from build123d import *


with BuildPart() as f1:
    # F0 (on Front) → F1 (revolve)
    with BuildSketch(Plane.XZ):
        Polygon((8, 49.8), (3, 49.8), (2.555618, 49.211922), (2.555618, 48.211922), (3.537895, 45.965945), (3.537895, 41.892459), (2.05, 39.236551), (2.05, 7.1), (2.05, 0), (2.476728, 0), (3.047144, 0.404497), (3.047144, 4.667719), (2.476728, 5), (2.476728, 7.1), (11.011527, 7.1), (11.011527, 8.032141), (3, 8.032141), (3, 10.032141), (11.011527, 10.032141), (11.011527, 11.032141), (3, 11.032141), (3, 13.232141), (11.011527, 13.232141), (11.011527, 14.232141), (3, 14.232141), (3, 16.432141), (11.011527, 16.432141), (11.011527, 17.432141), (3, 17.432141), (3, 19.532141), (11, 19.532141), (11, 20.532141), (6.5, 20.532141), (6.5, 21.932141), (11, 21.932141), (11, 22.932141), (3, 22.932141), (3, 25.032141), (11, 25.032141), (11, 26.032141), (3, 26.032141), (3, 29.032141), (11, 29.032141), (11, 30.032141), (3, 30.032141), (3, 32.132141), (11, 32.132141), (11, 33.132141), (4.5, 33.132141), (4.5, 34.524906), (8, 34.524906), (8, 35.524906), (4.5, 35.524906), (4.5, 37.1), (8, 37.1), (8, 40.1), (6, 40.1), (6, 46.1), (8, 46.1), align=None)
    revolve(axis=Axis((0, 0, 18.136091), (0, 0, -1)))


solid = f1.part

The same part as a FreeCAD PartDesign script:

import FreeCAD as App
import Part
import Sketcher
Q = App.Units.Quantity


def add_polygon(sketch, points):
    """Adds a closed chain of lines whose ends are joined by coincident constraints."""
    first, n = sketch.GeometryCount, len(points)
    for a, b in zip(points, points[1:] + points[:1]):
        sketch.addGeometry(Part.LineSegment(App.Vector(*a, 0), App.Vector(*b, 0)), False)
    for i in range(n):
        sketch.addConstraint(Sketcher.Constraint("Coincident", first + i, 2, first + (i + 1) % n, 1))

doc = App.newDocument("Part")
body = doc.addObject("PartDesign::Body", "Body")

sketch1 = body.newObject("Sketcher::SketchObject", "Sketch")
sketch1.AttachmentSupport = (doc.getObject("XZ_Plane"), [""])
sketch1.MapMode = "FlatFace"
add_polygon(sketch1, [(8, 49.8), (3, 49.8), (2.56, 49.21), (2.56, 48.21), (3.54, 45.97), (3.54, 41.89), (2.05, 39.24), (2.05, 0), (2.48, 0), (3.05, 0.4), (3.05, 4.67), (2.48, 5), (2.48, 7.1), (11.01, 7.1), (11.01, 8.03), (3, 8.03), (3, 10.03), (11.01, 10.03), (11.01, 11.03), (3, 11.03), (3, 13.23), (11.01, 13.23), (11.01, 14.23), (3, 14.23), (3, 16.43), (11.01, 16.43), (11.01, 17.43), (3, 17.43), (3, 19.53), (11, 19.53), (11, 20.53), (6.5, 20.53), (6.5, 21.93), (11, 21.93), (11, 22.93), (3, 22.93), (3, 25.03), (11, 25.03), (11, 26.03), (3, 26.03), (3, 29.03), (11, 29.03), (11, 30.03), (3, 30.03), (3, 32.13), (11, 32.13), (11, 33.13), (4.5, 33.13), (4.5, 34.52), (8, 34.52), (8, 35.52), (4.5, 35.52), (4.5, 37.1), (8, 37.1), (8, 40.1), (6, 40.1), (6, 46.1), (8, 46.1)])
sketch1.addConstraint([
    Sketcher.Constraint("Horizontal", 0),
    Sketcher.Constraint("Vertical", 2),
    Sketcher.Constraint("Vertical", 4),
    Sketcher.Constraint("Vertical", 6),
    Sketcher.Constraint("Horizontal", 7),
    Sketcher.Constraint("Vertical", 9),
    Sketcher.Constraint("Vertical", 11),
    Sketcher.Constraint("Horizontal", 12),
    Sketcher.Constraint("Vertical", 13),
    Sketcher.Constraint("Horizontal", 14),
    Sketcher.Constraint("Vertical", 15),
    Sketcher.Constraint("Horizontal", 16),
    Sketcher.Constraint("Vertical", 17),
    Sketcher.Constraint("Horizontal", 18),
    Sketcher.Constraint("Vertical", 19),
    Sketcher.Constraint("Horizontal", 20),
    Sketcher.Constraint("Vertical", 21),
    Sketcher.Constraint("Horizontal", 22),
    Sketcher.Constraint("Vertical", 23),
    Sketcher.Constraint("Horizontal", 24),
    Sketcher.Constraint("Vertical", 25),
    Sketcher.Constraint("Horizontal", 26),
    Sketcher.Constraint("Vertical", 27),
    Sketcher.Constraint("Horizontal", 28),
    Sketcher.Constraint("Vertical", 29),
    Sketcher.Constraint("Horizontal", 30),
    Sketcher.Constraint("Vertical", 31),
    Sketcher.Constraint("Horizontal", 32),
    Sketcher.Constraint("Vertical", 33),
    Sketcher.Constraint("Horizontal", 34),
    Sketcher.Constraint("Vertical", 35),
    Sketcher.Constraint("Horizontal", 36),
    Sketcher.Constraint("Vertical", 37),
    Sketcher.Constraint("Horizontal", 38),
    Sketcher.Constraint("Vertical", 39),
    Sketcher.Constraint("Horizontal", 40),
    Sketcher.Constraint("Vertical", 41),
    Sketcher.Constraint("Horizontal", 42),
    Sketcher.Constraint("Vertical", 43),
    Sketcher.Constraint("Horizontal", 44),
    Sketcher.Constraint("Vertical", 45),
    Sketcher.Constraint("Horizontal", 46),
    Sketcher.Constraint("Vertical", 47),
    Sketcher.Constraint("Horizontal", 48),
    Sketcher.Constraint("Vertical", 49),
    Sketcher.Constraint("Horizontal", 50),
    Sketcher.Constraint("Vertical", 51),
    Sketcher.Constraint("Horizontal", 52),
    Sketcher.Constraint("Vertical", 53),
    Sketcher.Constraint("Horizontal", 54),
    Sketcher.Constraint("Vertical", 55),
    Sketcher.Constraint("Horizontal", 56),
    Sketcher.Constraint("Vertical", 57),
    Sketcher.Constraint("PointOnObject", 6, 2, -1),
    Sketcher.Constraint("Vertical", 7, 2, 10, 2),
    Sketcher.Constraint("Vertical", 0, 2, 14, 2),
    Sketcher.Constraint("Vertical", 13, 2, 16, 2),
    Sketcher.Constraint("Vertical", 15, 2, 18, 2),
    Sketcher.Constraint("Vertical", 17, 2, 20, 2),
    Sketcher.Constraint("Vertical", 19, 2, 22, 2),
    Sketcher.Constraint("Vertical", 21, 2, 24, 2),
    Sketcher.Constraint("Vertical", 23, 2, 26, 2),
    Sketcher.Constraint("Vertical", 29, 2, 32, 2),
    Sketcher.Constraint("Vertical", 27, 2, 34, 2),
    Sketcher.Constraint("Vertical", 33, 2, 36, 2),
    Sketcher.Constraint("Vertical", 35, 2, 38, 2),
    Sketcher.Constraint("Vertical", 37, 2, 40, 2),
    Sketcher.Constraint("Vertical", 39, 2, 42, 2),
    Sketcher.Constraint("Vertical", 41, 2, 44, 2),
    Sketcher.Constraint("Vertical", 47, 2, 50, 2),
    Sketcher.Constraint("Vertical", 49, 2, 52, 2),
    Sketcher.Constraint("Vertical", 53, 2, 56, 2),
    Sketcher.Constraint("Equal", 56, 15),
    Sketcher.Constraint("Equal", 2, 17),
    Sketcher.Constraint("Equal", 17, 21),
    Sketcher.Constraint("Equal", 19, 23),
    Sketcher.Constraint("Equal", 21, 25),
    Sketcher.Constraint("Equal", 11, 27),
    Sketcher.Constraint("Equal", 25, 29),
    Sketcher.Constraint("Equal", 29, 33),
    Sketcher.Constraint("Equal", 27, 35),
    Sketcher.Constraint("Equal", 33, 37),
    Sketcher.Constraint("Equal", 37, 41),
    Sketcher.Constraint("Equal", 35, 43),
    Sketcher.Constraint("Equal", 41, 45),
    Sketcher.Constraint("Equal", 45, 49),
    Sketcher.Constraint("Equal", 39, 53),
    Sketcher.Constraint("DistanceX", 0, 2, 0, 1, Q("5 mm")),
    Sketcher.Constraint("DistanceX", 28, 1, 28, 2, Q("8 mm")),
    Sketcher.Constraint("DistanceX", 54, 2, 54, 1, Q("2 mm")),
    Sketcher.Constraint("DistanceY", 2, 2, 2, 1, Q("1 mm")),
    Sketcher.Constraint("DistanceY", 39, 1, 39, 2, Q("3 mm")),
    Sketcher.Constraint("DistanceY", 55, 1, 55, 2, Q("6 mm")),
    Sketcher.Constraint("DistanceX", 30, 2, 30, 1, Q("4.5 mm")),
    Sketcher.Constraint("DistanceX", 46, 2, 46, 1, Q("6.5 mm")),
    Sketcher.Constraint("DistanceY", 11, 1, 11, 2, Q("2.1 mm")),
    Sketcher.Constraint("DistanceY", 19, 1, 19, 2, Q("2.2 mm")),
    Sketcher.Constraint("DistanceY", 31, 1, 31, 2, Q("1.4 mm")),
    Sketcher.Constraint("DistanceY", 57, 1, 57, 2, Q("3.7 mm")),
    Sketcher.Constraint("DistanceX", -1, 1, 0, 2, Q("3 mm")),
    Sketcher.Constraint("DistanceY", -1, 1, 10, 2, Q("5 mm")),
    Sketcher.Constraint("DistanceY", -1, 1, 0, 2, Q("49.8 mm")),
    Sketcher.Constraint("DistanceX", -1, 1, 5, 2, Q("2.05 mm")),
    Sketcher.Constraint("DistanceX", 12, 1, 12, 2, Q("8.534799 mm")),
    Sketcher.Constraint("DistanceX", 7, 1, 7, 2, Q("0.426728 mm")),
    Sketcher.Constraint("DistanceY", 6, 2, 6, 1, Q("39.236551 mm")),
    Sketcher.Constraint("DistanceY", 13, 1, 13, 2, Q("0.932141 mm")),
    Sketcher.Constraint("Distance", 8, Q("0.69928 mm")),
    Sketcher.Constraint("Distance", 10, Q("0.66014 mm")),
    Sketcher.Constraint("DistanceY", 4, 2, 4, 1, Q("4.073486 mm")),
    Sketcher.Constraint("DistanceY", 9, 1, 9, 2, Q("4.263222 mm")),
    Sketcher.Constraint("DistanceY", 47, 1, 47, 2, Q("1.392765 mm")),
    Sketcher.Constraint("DistanceX", -1, 1, 1, 2, Q("2.555618 mm")),
    Sketcher.Constraint("DistanceY", -1, 1, 4, 2, Q("41.892459 mm")),
    Sketcher.Constraint("DistanceY", 5, 2, 2, 2, Q("8.975371 mm")),
    Sketcher.Constraint("DistanceX", 8, 2, 4, 2, Q("0.490751 mm")),
])
revolution = body.newObject("PartDesign::Revolution", "Revolution")
revolution.Profile = sketch1
revolution.ReferenceAxis = (sketch1, ["V_Axis"])
revolution.Angle = 360

doc.recompute()
